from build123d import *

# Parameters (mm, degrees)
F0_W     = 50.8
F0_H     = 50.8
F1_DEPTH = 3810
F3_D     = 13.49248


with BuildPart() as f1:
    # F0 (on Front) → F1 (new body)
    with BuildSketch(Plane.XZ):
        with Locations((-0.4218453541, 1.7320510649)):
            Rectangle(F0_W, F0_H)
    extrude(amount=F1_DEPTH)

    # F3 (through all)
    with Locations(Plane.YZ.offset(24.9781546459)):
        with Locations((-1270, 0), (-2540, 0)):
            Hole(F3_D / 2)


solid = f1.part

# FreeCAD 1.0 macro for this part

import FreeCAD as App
import Part
import Sketcher

V = App.Vector
Q = App.Units.Quantity


def add_polygon(sketch, points):
    """Adds a closed chain of lines whose ends are joined by coincident constraints."""
    first, n = sketch.GeometryCount, len(points)
    for a, b in zip(points, points[1:] + points[:1]):
        sketch.addGeometry(Part.LineSegment(App.Vector(*a, 0), App.Vector(*b, 0)), False)
    for i in range(n):
        sketch.addConstraint(Sketcher.Constraint("Coincident", first + i, 2, first + (i + 1) % n, 1))

doc = App.newDocument("Part")
body = doc.addObject("PartDesign::Body", "Body")

# Sketch on XZ plane
sketch1 = doc.addObject("Sketcher::SketchObject", "Sketch")
body.addObject(sketch1)
sketch1.AttachmentSupport = (doc.XZ_Plane, [""])
sketch1.MapMode = "FlatFace"
add_polygon(sketch1, [(-26, 27), (-26, -24), (25, -24), (25, 27)])  # lines 0-3
sketch1.addConstraint([
    Sketcher.Constraint("Vertical", 0),
    Sketcher.Constraint("Horizontal", 1),
    Sketcher.Constraint("Vertical", 2),
    Sketcher.Constraint("Horizontal", 3),
    Sketcher.Constraint("Equal", 3, 0),
    Sketcher.Constraint("DistanceX", 1, 1, 1, 2, Q("2 in")),
    Sketcher.Constraint("DistanceY", 0, 2, -1, 1, 23.667949),
    Sketcher.Constraint("DistanceX", 0, 2, -1, 1, 25.821845),
])
pad1 = doc.addObject("PartDesign::Pad", "Pad")
body.addObject(pad1)
pad1.Profile = sketch1
pad1.Length = Q("150 in")

# Sketch on YZ plane
sketch2 = doc.addObject("Sketcher::SketchObject", "Sketch001")
body.addObject(sketch2)
sketch2.AttachmentSupport = (doc.YZ_Plane, [""])
sketch2.MapMode = "FlatFace"
sketch2.AttachmentOffset = App.Placement(V(0, 0, 24.978155), App.Rotation())
sketch2.addGeometry([
    Part.Circle(V(-1270, 0, 0), V(0, 0, 1), 7),
    Part.Circle(V(-2540, 0, 0), V(0, 0, 1), 7),
], False)
sketch2.addConstraint([
    Sketcher.Constraint("Equal", 0, 1),
    Sketcher.Constraint("PointOnObject", 0, 3, -1),
    Sketcher.Constraint("PointOnObject", 1, 3, -1),
    Sketcher.Constraint("DistanceX", 0, 3, -1, 1, Q("50 in")),
    Sketcher.Constraint("DistanceX", 1, 3, -1, 1, Q("100 in")),
    Sketcher.Constraint("Diameter", 0, Q("0.5312 in")),
])
doc.recompute()
hole = doc.addObject("PartDesign::Hole", "Hole")
body.addObject(hole)
hole.Profile = sketch2
hole.ThreadType = "None"
hole.Diameter = Q("0.5312 in")
hole.DepthType = "ThroughAll"

doc.recompute()
